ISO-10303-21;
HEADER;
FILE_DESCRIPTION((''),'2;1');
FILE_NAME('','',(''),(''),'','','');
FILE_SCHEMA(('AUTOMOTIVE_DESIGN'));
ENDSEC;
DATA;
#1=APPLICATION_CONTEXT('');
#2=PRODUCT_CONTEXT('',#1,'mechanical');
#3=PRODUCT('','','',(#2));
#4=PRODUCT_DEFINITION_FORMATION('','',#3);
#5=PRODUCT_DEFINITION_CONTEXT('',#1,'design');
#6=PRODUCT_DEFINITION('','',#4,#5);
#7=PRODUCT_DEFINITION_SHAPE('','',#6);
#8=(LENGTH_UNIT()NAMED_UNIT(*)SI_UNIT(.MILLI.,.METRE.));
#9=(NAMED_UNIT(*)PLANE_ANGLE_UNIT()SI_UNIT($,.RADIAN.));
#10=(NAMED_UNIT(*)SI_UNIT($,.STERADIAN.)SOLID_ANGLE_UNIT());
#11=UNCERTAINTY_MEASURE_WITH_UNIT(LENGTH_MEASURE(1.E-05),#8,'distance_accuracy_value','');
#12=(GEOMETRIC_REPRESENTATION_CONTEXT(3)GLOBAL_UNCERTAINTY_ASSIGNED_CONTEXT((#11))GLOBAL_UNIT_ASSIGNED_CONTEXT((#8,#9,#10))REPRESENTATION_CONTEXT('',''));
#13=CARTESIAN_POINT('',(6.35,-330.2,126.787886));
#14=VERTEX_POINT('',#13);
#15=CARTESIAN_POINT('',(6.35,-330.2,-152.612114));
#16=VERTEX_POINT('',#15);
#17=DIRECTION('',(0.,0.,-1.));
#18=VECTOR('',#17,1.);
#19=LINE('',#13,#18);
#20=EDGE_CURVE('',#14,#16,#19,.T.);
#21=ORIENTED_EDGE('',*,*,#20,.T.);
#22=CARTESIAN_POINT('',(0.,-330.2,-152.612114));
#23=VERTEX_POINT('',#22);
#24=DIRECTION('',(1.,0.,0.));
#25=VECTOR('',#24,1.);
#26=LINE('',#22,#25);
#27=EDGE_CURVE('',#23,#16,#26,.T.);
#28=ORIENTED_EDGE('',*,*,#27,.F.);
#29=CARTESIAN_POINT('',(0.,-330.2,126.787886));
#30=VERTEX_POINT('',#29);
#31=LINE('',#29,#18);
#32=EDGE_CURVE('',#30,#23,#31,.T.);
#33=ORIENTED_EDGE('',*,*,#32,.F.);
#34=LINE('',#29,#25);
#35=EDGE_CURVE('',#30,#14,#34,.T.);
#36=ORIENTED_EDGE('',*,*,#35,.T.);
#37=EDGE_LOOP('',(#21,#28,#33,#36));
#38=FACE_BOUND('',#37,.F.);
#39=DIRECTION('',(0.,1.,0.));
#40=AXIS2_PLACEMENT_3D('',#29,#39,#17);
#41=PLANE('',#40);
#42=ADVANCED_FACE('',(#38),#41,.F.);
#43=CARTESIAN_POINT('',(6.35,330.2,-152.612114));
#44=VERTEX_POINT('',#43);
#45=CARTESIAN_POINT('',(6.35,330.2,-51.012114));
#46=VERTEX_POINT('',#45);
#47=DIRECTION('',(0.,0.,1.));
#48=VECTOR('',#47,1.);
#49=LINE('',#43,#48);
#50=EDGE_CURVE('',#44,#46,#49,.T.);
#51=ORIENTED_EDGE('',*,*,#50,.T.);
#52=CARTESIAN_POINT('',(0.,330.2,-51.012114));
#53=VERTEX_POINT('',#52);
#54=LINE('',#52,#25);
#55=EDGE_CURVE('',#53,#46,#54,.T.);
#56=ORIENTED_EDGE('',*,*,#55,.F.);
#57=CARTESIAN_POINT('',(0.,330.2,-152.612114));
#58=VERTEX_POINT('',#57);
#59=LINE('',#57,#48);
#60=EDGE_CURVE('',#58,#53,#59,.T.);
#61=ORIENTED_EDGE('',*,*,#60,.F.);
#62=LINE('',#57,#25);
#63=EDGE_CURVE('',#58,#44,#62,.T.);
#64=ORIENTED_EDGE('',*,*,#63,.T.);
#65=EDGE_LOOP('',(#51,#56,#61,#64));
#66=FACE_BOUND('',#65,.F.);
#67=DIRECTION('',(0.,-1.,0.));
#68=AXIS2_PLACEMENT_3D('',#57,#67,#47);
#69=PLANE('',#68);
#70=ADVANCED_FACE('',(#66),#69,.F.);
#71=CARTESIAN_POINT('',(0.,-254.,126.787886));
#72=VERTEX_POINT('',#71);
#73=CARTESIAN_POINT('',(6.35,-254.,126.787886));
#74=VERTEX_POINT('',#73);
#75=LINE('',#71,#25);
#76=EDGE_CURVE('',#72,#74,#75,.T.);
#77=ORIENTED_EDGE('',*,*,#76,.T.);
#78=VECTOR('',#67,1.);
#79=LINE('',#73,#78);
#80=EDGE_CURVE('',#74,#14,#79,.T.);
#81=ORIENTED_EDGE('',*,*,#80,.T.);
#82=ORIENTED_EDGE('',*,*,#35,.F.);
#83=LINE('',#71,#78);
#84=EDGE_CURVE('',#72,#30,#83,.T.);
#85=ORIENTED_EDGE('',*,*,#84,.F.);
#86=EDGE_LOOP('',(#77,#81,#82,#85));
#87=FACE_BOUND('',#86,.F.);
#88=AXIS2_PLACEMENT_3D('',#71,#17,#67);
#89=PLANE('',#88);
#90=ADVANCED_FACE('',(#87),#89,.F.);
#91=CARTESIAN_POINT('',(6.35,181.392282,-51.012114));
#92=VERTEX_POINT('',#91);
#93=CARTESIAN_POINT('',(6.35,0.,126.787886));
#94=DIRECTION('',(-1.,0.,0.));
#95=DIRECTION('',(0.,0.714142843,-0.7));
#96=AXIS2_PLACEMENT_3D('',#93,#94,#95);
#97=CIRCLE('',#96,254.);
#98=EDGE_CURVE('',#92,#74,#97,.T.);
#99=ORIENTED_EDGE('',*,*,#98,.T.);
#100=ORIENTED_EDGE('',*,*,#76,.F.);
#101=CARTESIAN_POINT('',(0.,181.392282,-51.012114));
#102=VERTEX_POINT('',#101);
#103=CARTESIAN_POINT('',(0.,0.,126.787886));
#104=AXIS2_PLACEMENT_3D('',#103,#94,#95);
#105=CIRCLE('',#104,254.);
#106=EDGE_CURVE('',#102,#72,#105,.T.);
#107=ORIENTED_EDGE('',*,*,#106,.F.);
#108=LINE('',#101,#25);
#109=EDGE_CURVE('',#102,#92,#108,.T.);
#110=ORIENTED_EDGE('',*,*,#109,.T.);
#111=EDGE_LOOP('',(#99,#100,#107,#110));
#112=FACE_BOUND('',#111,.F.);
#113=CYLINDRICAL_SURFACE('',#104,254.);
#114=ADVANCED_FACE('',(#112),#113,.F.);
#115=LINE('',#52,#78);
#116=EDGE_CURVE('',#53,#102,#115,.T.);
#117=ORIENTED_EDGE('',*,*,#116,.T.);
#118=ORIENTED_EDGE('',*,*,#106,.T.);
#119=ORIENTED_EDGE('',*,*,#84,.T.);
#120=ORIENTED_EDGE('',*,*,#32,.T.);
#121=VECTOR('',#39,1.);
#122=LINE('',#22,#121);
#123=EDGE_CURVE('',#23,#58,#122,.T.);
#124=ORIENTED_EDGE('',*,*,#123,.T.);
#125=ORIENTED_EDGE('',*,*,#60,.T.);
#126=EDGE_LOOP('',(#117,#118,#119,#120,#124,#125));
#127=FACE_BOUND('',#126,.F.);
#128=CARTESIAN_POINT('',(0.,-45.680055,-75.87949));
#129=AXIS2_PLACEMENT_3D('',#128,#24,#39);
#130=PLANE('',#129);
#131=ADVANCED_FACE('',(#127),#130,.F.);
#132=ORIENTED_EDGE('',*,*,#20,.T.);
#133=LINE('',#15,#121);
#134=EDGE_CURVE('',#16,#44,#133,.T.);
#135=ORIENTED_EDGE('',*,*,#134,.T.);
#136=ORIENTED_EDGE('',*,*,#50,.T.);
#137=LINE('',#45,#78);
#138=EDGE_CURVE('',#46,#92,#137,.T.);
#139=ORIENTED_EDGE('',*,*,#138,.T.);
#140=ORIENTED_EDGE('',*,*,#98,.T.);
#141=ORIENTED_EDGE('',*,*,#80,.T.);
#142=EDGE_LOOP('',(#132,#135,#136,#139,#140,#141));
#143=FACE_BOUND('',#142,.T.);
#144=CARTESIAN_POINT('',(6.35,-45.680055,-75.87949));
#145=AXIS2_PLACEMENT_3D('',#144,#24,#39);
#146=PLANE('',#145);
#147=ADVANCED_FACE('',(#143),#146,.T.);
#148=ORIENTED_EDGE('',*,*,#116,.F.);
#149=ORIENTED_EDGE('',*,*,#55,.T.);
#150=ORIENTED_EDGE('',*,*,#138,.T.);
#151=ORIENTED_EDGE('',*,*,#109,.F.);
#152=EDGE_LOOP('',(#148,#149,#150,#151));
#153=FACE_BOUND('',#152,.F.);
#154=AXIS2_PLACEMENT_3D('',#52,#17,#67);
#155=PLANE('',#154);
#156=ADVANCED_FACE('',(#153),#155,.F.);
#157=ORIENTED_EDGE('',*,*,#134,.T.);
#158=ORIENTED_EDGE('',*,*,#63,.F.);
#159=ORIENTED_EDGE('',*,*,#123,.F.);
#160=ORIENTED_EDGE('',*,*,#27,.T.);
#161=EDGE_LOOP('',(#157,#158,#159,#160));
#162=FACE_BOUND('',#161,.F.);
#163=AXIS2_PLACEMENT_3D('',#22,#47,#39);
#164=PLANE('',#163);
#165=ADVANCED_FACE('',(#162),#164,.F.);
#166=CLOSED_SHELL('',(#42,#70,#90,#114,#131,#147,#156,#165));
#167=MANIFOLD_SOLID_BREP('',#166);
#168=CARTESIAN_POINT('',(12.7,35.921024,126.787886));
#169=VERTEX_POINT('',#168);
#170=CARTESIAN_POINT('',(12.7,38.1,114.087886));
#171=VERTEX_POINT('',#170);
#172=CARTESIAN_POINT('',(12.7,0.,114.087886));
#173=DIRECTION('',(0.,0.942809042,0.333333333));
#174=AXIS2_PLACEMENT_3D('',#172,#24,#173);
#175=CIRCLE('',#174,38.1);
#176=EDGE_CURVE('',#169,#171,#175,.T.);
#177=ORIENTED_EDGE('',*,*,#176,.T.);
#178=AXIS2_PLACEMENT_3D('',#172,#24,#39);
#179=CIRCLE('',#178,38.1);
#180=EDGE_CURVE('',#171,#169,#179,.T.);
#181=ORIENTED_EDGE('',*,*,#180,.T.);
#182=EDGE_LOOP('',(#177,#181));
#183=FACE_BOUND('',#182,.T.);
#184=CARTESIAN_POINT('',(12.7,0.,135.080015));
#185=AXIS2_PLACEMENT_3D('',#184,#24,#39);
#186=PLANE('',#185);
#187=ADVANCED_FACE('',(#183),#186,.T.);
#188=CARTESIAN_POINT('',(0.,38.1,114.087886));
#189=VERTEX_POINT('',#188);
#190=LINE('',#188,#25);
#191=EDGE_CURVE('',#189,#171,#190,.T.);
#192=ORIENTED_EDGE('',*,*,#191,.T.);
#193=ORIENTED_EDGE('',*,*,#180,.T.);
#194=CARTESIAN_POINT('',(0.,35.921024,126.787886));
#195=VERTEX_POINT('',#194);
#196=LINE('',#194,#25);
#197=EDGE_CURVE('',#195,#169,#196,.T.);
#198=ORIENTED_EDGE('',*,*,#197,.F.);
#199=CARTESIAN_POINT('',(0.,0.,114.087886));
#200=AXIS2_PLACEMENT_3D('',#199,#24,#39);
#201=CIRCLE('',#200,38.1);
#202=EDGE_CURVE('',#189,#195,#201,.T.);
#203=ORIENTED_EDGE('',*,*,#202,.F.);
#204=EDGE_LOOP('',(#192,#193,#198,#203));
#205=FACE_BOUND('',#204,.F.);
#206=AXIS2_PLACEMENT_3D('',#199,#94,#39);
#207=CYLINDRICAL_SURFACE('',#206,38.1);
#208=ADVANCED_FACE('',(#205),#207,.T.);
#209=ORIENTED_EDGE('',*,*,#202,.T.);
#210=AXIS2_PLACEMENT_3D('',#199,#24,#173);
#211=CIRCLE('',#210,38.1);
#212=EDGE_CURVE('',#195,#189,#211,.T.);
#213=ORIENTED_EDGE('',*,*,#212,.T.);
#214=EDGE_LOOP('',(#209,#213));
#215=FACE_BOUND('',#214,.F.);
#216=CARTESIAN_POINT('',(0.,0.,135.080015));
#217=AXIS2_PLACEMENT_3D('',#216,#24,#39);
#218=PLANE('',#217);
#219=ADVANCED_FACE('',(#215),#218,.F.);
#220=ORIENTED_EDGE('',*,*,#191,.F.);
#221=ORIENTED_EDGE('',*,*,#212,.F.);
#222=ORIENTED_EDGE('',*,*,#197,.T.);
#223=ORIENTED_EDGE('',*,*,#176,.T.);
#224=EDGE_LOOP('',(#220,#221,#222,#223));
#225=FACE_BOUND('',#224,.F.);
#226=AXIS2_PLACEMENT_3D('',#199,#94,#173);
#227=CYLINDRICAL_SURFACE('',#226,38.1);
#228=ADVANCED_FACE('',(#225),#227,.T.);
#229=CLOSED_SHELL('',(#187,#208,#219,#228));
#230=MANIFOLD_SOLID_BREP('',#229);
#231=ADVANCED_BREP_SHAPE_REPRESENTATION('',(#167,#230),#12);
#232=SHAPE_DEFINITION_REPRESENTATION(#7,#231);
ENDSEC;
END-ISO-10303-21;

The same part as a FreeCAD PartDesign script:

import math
import FreeCAD as App
import Part
import Sketcher

V = App.Vector
Q = App.Units.Quantity

doc = App.newDocument("Part")
params = doc.addObject("Spreadsheet::Sheet", "Params")
for row, (alias, value) in enumerate([
    ("sketch1_radius", "10 in"),
    ("sketch1_width", "3 in"),
    ("sketch1_width2", "26 in"),
    ("sketch1_height", "11 in"),
    ("sketch1_height2", "4 in"),
    ("pad1_length", "0.25 in"),
    ("sketch2_radius", "1.5 in"),
    ("pad2_length", "0.5 in"),
], start=1):
    params.set(f"A{row}", alias)
    params.set(f"B{row}", "=" + value)
    params.setAlias(f"B{row}", alias)

body = doc.addObject("PartDesign::Body", "Body")

# Sketch on YZ plane
sketch1 = body.newObject("Sketcher::SketchObject", "Sketch")
sketch1.AttachmentSupport = (doc.getObject("YZ_Plane"), [""])
sketch1.MapMode = "FlatFace"
sketch1.addGeometry([
    Part.LineSegment(V(330.2, -51.012114, 0), V(181.392282, -51.012114, 0)),  # 0
    Part.ArcOfCircle(Part.Circle(V(0, 126.787886, 0), V(0, 0, 1), 254), math.radians(-180), math.radians(-44.427004)),  # 1
    Part.LineSegment(V(-254, 126.787886, 0), V(-330.2, 126.787886, 0)),  # 2
    Part.LineSegment(V(-330.2, 126.787886, 0), V(-330.2, -152.612114, 0)),  # 3
    Part.LineSegment(V(-330.2, -152.612114, 0), V(330.2, -152.612114, 0)),  # 4
    Part.LineSegment(V(330.2, -152.612114, 0), V(330.2, -51.012114, 0)),  # 5
], False)
sketch1.addConstraint([
    Sketcher.Constraint("Coincident", 0, 2, 1, 2),
    Sketcher.Constraint("Coincident", 1, 1, 2, 1),
    Sketcher.Constraint("Coincident", 2, 2, 3, 1),
    Sketcher.Constraint("Coincident", 3, 2, 4, 1),
    Sketcher.Constraint("Coincident", 4, 2, 5, 1),
    Sketcher.Constraint("Coincident", 5, 2, 0, 1),
    Sketcher.Constraint("Horizontal", 0),
    Sketcher.Constraint("Horizontal", 2),
    Sketcher.Constraint("Vertical", 3),
    Sketcher.Constraint("Horizontal", 4),
    Sketcher.Constraint("Vertical", 5),
    Sketcher.Constraint("PointOnObject", 1, 3, -2),
    Sketcher.Constraint("Radius", 1, Q("10 in")),
    Sketcher.Constraint("DistanceX", 2, 2, 2, 1, Q("3 in")),
    Sketcher.Constraint("DistanceX", 4, 1, 4, 2, Q("26 in")),
    Sketcher.Constraint("DistanceY", 3, 2, 3, 1, Q("11 in")),
    Sketcher.Constraint("DistanceY", 5, 1, 5, 2, Q("4 in")),
    Sketcher.Constraint("DistanceY", 0, 2, 1, 3, Q("7 in")),
    Sketcher.Constraint("DistanceY", -1, 1, 1, 3, 126.787886),
])
sketch1.setExpression("Constraints[12]", "Params.sketch1_radius")
sketch1.setExpression("Constraints[13]", "Params.sketch1_width")
sketch1.setExpression("Constraints[14]", "Params.sketch1_width2")
sketch1.setExpression("Constraints[15]", "Params.sketch1_height")
sketch1.setExpression("Constraints[16]", "Params.sketch1_height2")
pad1 = body.newObject("PartDesign::Pad", "Pad")
pad1.Profile = sketch1
pad1.setExpression("Length", "Params.pad1_length")
body2 = doc.addObject("PartDesign::Body", "Body001")

# Sketch on YZ plane
sketch2 = body2.newObject("Sketcher::SketchObject", "Sketch001")
sketch2.AttachmentSupport = (doc.getObject("YZ_Plane001"), [""])
sketch2.MapMode = "FlatFace"
sketch2.addGeometry([
    Part.ArcOfCircle(Part.Circle(V(0, 114.087886, 0), V(0, 0, 1), 38.1), math.radians(19.471221), math.radians(360)),
    Part.ArcOfCircle(Part.Circle(V(0, 114.087886, 0), V(0, 0, 1), 38.1), math.radians(0), math.radians(19.471221)),
], False)
sketch2.addConstraint([
    Sketcher.Constraint("Tangent", 0, 1, 1, 2),
    Sketcher.Constraint("Coincident", 1, 1, 0, 2),
    Sketcher.Constraint("PointOnObject", 0, 3, -2),
    Sketcher.Constraint("Horizontal", 0, 3, 1, 1),
    Sketcher.Constraint("Radius", 0, Q("1.5 in")),
    Sketcher.Constraint("DistanceY", 1, 3, 0, 1, Q("0.5 in")),
    Sketcher.Constraint("DistanceY", -1, 1, 0, 3, 114.087886),
])
sketch2.setExpression("Constraints[4]", "Params.sketch2_radius")
pad2 = body2.newObject("PartDesign::Pad", "Pad001")
pad2.Profile = sketch2
pad2.setExpression("Length", "Params.pad2_length")

doc.recompute()
